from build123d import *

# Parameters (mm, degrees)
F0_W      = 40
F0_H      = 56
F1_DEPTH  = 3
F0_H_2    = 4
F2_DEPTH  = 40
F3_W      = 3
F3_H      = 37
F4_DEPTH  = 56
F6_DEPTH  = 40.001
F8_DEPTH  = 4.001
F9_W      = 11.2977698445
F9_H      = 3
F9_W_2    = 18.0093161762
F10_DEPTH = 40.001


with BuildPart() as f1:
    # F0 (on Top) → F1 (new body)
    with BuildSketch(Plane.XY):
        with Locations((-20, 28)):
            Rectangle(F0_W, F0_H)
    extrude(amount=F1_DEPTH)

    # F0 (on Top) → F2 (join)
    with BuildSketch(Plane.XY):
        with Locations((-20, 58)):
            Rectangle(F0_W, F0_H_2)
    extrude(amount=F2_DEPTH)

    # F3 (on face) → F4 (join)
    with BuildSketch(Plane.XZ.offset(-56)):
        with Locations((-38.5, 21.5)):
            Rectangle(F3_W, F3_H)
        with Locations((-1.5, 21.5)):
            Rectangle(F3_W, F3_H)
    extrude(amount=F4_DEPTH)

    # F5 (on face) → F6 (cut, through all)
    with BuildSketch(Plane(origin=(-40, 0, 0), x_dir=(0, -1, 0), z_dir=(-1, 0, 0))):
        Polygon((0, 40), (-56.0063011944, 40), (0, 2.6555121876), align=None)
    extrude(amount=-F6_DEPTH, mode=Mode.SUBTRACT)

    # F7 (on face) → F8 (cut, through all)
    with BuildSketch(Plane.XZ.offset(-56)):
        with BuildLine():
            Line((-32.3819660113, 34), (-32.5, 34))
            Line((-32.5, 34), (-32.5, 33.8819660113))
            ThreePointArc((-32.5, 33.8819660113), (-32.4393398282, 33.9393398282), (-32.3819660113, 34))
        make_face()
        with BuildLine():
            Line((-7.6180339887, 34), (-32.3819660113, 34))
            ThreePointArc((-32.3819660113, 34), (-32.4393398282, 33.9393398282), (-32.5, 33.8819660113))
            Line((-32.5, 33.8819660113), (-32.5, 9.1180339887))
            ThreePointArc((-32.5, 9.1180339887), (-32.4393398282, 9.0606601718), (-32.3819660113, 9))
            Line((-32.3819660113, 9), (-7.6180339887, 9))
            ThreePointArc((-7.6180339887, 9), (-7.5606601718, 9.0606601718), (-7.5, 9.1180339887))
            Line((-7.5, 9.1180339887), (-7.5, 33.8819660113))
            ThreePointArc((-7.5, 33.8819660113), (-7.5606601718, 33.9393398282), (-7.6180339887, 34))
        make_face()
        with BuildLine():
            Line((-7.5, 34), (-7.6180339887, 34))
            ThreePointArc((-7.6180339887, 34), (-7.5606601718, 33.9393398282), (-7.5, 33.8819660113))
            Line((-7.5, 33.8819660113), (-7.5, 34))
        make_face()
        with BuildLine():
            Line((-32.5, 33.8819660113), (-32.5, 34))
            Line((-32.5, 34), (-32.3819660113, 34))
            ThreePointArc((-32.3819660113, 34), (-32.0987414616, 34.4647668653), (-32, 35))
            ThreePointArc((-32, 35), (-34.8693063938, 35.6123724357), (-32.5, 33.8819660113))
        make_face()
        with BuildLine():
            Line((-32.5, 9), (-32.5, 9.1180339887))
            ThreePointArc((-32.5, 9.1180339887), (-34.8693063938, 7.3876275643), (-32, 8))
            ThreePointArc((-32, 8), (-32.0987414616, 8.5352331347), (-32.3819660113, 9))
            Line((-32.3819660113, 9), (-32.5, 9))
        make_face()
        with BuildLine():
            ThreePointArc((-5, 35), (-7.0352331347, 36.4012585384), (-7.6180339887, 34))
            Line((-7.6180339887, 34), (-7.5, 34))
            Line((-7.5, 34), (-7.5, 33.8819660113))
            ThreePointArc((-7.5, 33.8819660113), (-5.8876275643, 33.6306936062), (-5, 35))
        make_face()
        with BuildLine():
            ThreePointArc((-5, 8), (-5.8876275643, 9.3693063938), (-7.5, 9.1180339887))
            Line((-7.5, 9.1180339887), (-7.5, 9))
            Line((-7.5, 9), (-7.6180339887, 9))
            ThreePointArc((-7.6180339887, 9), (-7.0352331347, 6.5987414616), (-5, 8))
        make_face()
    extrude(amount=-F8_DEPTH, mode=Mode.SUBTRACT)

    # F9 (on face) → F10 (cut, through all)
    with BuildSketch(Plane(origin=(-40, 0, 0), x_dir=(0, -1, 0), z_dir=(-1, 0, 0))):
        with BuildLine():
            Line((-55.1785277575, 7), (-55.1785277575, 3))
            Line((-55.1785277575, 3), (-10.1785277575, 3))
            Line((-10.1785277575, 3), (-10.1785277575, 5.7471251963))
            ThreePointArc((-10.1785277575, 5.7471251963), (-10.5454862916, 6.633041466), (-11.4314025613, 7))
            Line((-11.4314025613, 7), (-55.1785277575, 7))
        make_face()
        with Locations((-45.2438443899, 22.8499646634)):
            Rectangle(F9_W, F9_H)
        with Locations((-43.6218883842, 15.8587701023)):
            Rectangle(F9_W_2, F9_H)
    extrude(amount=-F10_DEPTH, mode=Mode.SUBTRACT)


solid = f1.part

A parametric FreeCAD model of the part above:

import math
import FreeCAD as App
import Part
import Sketcher

V = App.Vector


def add_polygon(sketch, points):
    """Adds a closed chain of lines whose ends are joined by coincident constraints."""
    first, n = sketch.GeometryCount, len(points)
    for a, b in zip(points, points[1:] + points[:1]):
        sketch.addGeometry(Part.LineSegment(App.Vector(*a, 0), App.Vector(*b, 0)), False)
    for i in range(n):
        sketch.addConstraint(Sketcher.Constraint("Coincident", first + i, 2, first + (i + 1) % n, 1))

doc = App.newDocument("Part")
body = doc.addObject("PartDesign::Body", "Body")
body.AllowCompound = True

# Sketch on XY plane
sketch1 = body.newObject("Sketcher::SketchObject", "Sketch")
sketch1.AttachmentSupport = (doc.getObject("XY_Plane"), [""])
sketch1.MapMode = "FlatFace"
add_polygon(sketch1, [(-40, 56), (-40, 0), (0, 0), (0, 56)])  # lines 0-3
sketch1.addConstraint(Sketcher.Constraint("Vertical", 0))
sketch1.addConstraint(Sketcher.Constraint("Horizontal", 1))
sketch1.addConstraint(Sketcher.Constraint("Vertical", 2))
sketch1.addConstraint(Sketcher.Constraint("Horizontal", 3))
sketch1.addConstraint(Sketcher.Constraint("Coincident", 1, 2, -1, 1))
sketch1.addConstraint(Sketcher.Constraint("DistanceX", 1, 1, 1, 2, 40.0))
sketch1.addConstraint(Sketcher.Constraint("DistanceY", 0, 2, 0, 1, 56.0))
pad1 = body.newObject("PartDesign::Pad", "Pad")
pad1.Profile = sketch1
pad1.Length = 3

# Sketch on XY plane
sketch2 = body.newObject("Sketcher::SketchObject", "Sketch001")
sketch2.AttachmentSupport = (doc.getObject("XY_Plane"), [""])
sketch2.MapMode = "FlatFace"
add_polygon(sketch2, [(-40, 60), (-40, 56), (0, 56), (0, 60)])  # lines 0-3
sketch2.addConstraint(Sketcher.Constraint("Vertical", 0))
sketch2.addConstraint(Sketcher.Constraint("Horizontal", 1))
sketch2.addConstraint(Sketcher.Constraint("Vertical", 2))
sketch2.addConstraint(Sketcher.Constraint("Horizontal", 3))
sketch2.addConstraint(Sketcher.Constraint("PointOnObject", 1, 2, -2))
sketch2.addConstraint(Sketcher.Constraint("DistanceX", 1, 1, 1, 2, 40.0))
sketch2.addConstraint(Sketcher.Constraint("DistanceY", 0, 2, 0, 1, 4.0))
sketch2.addConstraint(Sketcher.Constraint("DistanceY", -1, 1, 0, 2, 56.0))
pad2 = body.newObject("PartDesign::Pad", "Pad001")
pad2.Profile = sketch2
pad2.Length = 40

# Sketch on XZ plane
sketch3 = body.newObject("Sketcher::SketchObject", "Sketch002")
sketch3.AttachmentSupport = (doc.getObject("XZ_Plane"), [""])
sketch3.MapMode = "FlatFace"
sketch3.AttachmentOffset = App.Placement(V(0, 0, -56), App.Rotation())
add_polygon(sketch3, [(-40, 40), (-40, 3), (-37, 3), (-37, 40)])  # lines 0-3
add_polygon(sketch3, [(-3, 40), (-3, 3), (0, 3), (0, 40)])  # lines 4-7
sketch3.addConstraint(Sketcher.Constraint("Vertical", 0))
sketch3.addConstraint(Sketcher.Constraint("Horizontal", 1))
sketch3.addConstraint(Sketcher.Constraint("Vertical", 2))
sketch3.addConstraint(Sketcher.Constraint("Horizontal", 3))
sketch3.addConstraint(Sketcher.Constraint("Vertical", 4))
sketch3.addConstraint(Sketcher.Constraint("Horizontal", 5))
sketch3.addConstraint(Sketcher.Constraint("Vertical", 6))
sketch3.addConstraint(Sketcher.Constraint("Horizontal", 7))
sketch3.addConstraint(Sketcher.Constraint("PointOnObject", 5, 2, -2))
sketch3.addConstraint(Sketcher.Constraint("Horizontal", 1, 2, 4, 2))
sketch3.addConstraint(Sketcher.Constraint("Horizontal", 3, 2, 6, 2))
sketch3.addConstraint(Sketcher.Constraint("Equal", 3, 5))
sketch3.addConstraint(Sketcher.Constraint("DistanceX", 1, 1, 1, 2, 3.0))
sketch3.addConstraint(Sketcher.Constraint("DistanceY", 0, 2, 0, 1, 37.0))
sketch3.addConstraint(Sketcher.Constraint("DistanceX", 0, 2, -1, 1, 40.0))
sketch3.addConstraint(Sketcher.Constraint("DistanceY", -1, 1, 0, 2, 3.0))
pad3 = body.newObject("PartDesign::Pad", "Pad002")
pad3.Profile = sketch3
pad3.Length = 56

# Sketch on YZ plane
sketch4 = body.newObject("Sketcher::SketchObject", "Sketch003")
sketch4.AttachmentSupport = (doc.getObject("YZ_Plane"), [""])
sketch4.MapMode = "FlatFace"
sketch4.AttachmentOffset = App.Placement(V(0, 0, -40), App.Rotation())
add_polygon(sketch4, [(0, 40), (56, 40), (0, 3)])  # lines 0-2
sketch4.addConstraint(Sketcher.Constraint("Horizontal", 0))
sketch4.addConstraint(Sketcher.Constraint("Vertical", 2))
sketch4.addConstraint(Sketcher.Constraint("PointOnObject", 1, 2, -2))
sketch4.addConstraint(Sketcher.Constraint("DistanceY", -1, 1, 0, 2, 40.0))
sketch4.addConstraint(Sketcher.Constraint("DistanceX", 0, 1, 0, 2, 56.006301))
sketch4.addConstraint(Sketcher.Constraint("DistanceY", 2, 1, 2, 2, 37.344488))
pocket1 = body.newObject("PartDesign::Pocket", "Pocket")
pocket1.Profile = sketch4
pocket1.Type = "ThroughAll"
pocket1.Reversed = True

# Sketch on XZ plane
sketch5 = body.newObject("Sketcher::SketchObject", "Sketch004")
sketch5.AttachmentSupport = (doc.getObject("XZ_Plane"), [""])
sketch5.MapMode = "FlatFace"
sketch5.AttachmentOffset = App.Placement(V(0, 0, -56), App.Rotation())
sketch5.addGeometry(Part.ArcOfCircle(Part.Circle(V(-33.5, 35, 0), V(0, 0, 1), 1.5), math.radians(-42), math.radians(0)), False)
sketch5.addGeometry(Part.ArcOfCircle(Part.Circle(V(-33.5, 35, 0), V(0, 0, 1), 1.5), math.radians(0), math.radians(312)), False)
sketch5.addGeometry(Part.LineSegment(V(-32.5, 33.88, 0), V(-32.5, 9.12, 0)), False)
sketch5.addGeometry(Part.ArcOfCircle(Part.Circle(V(-33.5, 8, 0), V(0, 0, 1), 1.5), math.radians(41.81), math.radians(48.19)), False)
sketch5.addGeometry(Part.LineSegment(V(-32.38, 9, 0), V(-7.62, 9, 0)), False)
sketch5.addGeometry(Part.ArcOfCircle(Part.Circle(V(-6.5, 8, 0), V(0, 0, 1), 1.5), math.radians(131.81), math.radians(138.19)), False)
sketch5.addGeometry(Part.LineSegment(V(-7.5, 9.12, 0), V(-7.5, 33.88, 0)), False)
sketch5.addGeometry(Part.ArcOfCircle(Part.Circle(V(-6.5, 35, 0), V(0, 0, 1), 1.5), math.radians(-132), math.radians(0)), False)
sketch5.addGeometry(Part.ArcOfCircle(Part.Circle(V(-6.5, 35, 0), V(0, 0, 1), 1.5), math.radians(0), math.radians(222)), False)
sketch5.addGeometry(Part.LineSegment(V(-7.62, 34, 0), V(-32.38, 34, 0)), False)
sketch5.addGeometry(Part.LineSegment(V(-32.5, 9, 0), V(-32.5, 9.12, 0)), False)
sketch5.addGeometry(Part.ArcOfCircle(Part.Circle(V(-33.5, 8, 0), V(0, 0, 1), 1.5), math.radians(48), math.radians(360)), False)
sketch5.addGeometry(Part.ArcOfCircle(Part.Circle(V(-33.5, 8, 0), V(0, 0, 1), 1.5), math.radians(0), math.radians(42)), False)
sketch5.addGeometry(Part.LineSegment(V(-32.38, 9, 0), V(-32.5, 9, 0)), False)
sketch5.addGeometry(Part.ArcOfCircle(Part.Circle(V(-6.5, 8, 0), V(0, 0, 1), 1.5), math.radians(0), math.radians(132)), False)
sketch5.addGeometry(Part.LineSegment(V(-7.5, 9.12, 0), V(-7.5, 9, 0)), False)
sketch5.addGeometry(Part.LineSegment(V(-7.5, 9, 0), V(-7.62, 9, 0)), False)
sketch5.addGeometry(Part.ArcOfCircle(Part.Circle(V(-6.5, 8, 0), V(0, 0, 1), 1.5), math.radians(138), math.radians(360)), False)
sketch5.addConstraint(Sketcher.Constraint("Tangent", 0, 2, 1, 1))
sketch5.addConstraint(Sketcher.Constraint("Coincident", 1, 2, 2, 1))
sketch5.addConstraint(Sketcher.Constraint("Coincident", 2, 2, 3, 2))
sketch5.addConstraint(Sketcher.Constraint("Coincident", 3, 1, 4, 1))
sketch5.addConstraint(Sketcher.Constraint("Coincident", 4, 2, 5, 2))
sketch5.addConstraint(Sketcher.Constraint("Coincident", 5, 1, 6, 1))
sketch5.addConstraint(Sketcher.Constraint("Coincident", 6, 2, 7, 1))
sketch5.addConstraint(Sketcher.Constraint("Tangent", 7, 2, 8, 1))
sketch5.addConstraint(Sketcher.Constraint("Coincident", 8, 2, 9, 1))
sketch5.addConstraint(Sketcher.Constraint("Coincident", 9, 2, 0, 1))
sketch5.addConstraint(Sketcher.Constraint("Coincident", 10, 2, 11, 1))
sketch5.addConstraint(Sketcher.Constraint("Tangent", 11, 2, 12, 1))
sketch5.addConstraint(Sketcher.Constraint("Coincident", 12, 2, 13, 1))
sketch5.addConstraint(Sketcher.Constraint("Coincident", 13, 2, 10, 1))
sketch5.addConstraint(Sketcher.Constraint("Coincident", 14, 2, 15, 1))
sketch5.addConstraint(Sketcher.Constraint("Coincident", 15, 2, 16, 1))
sketch5.addConstraint(Sketcher.Constraint("Coincident", 16, 2, 17, 1))
sketch5.addConstraint(Sketcher.Constraint("Tangent", 17, 2, 14, 1))
sketch5.addConstraint(Sketcher.Constraint("Vertical", 2))
sketch5.addConstraint(Sketcher.Constraint("Horizontal", 4))
sketch5.addConstraint(Sketcher.Constraint("Vertical", 6))
sketch5.addConstraint(Sketcher.Constraint("Horizontal", 9))
sketch5.addConstraint(Sketcher.Constraint("Vertical", 10))
sketch5.addConstraint(Sketcher.Constraint("Horizontal", 13))
sketch5.addConstraint(Sketcher.Constraint("Vertical", 15))
sketch5.addConstraint(Sketcher.Constraint("Horizontal", 16))
sketch5.addConstraint(Sketcher.Constraint("Coincident", 11, 3, 3, 3))
sketch5.addConstraint(Sketcher.Constraint("Coincident", 14, 3, 5, 3))
sketch5.addConstraint(Sketcher.Constraint("Coincident", 10, 2, 2, 2))
sketch5.addConstraint(Sketcher.Constraint("Coincident", 12, 2, 3, 1))
sketch5.addConstraint(Sketcher.Constraint("Coincident", 14, 2, 5, 1))
sketch5.addConstraint(Sketcher.Constraint("Coincident", 16, 2, 4, 2))
sketch5.addConstraint(Sketcher.Constraint("Equal", 0, 1))
sketch5.addConstraint(Sketcher.Constraint("Equal", 1, 3))
sketch5.addConstraint(Sketcher.Constraint("Equal", 3, 5))
sketch5.addConstraint(Sketcher.Constraint("Equal", 5, 7))
sketch5.addConstraint(Sketcher.Constraint("Equal", 7, 8))
sketch5.addConstraint(Sketcher.Constraint("Horizontal", 3, 3, 5, 3))
sketch5.addConstraint(Sketcher.Constraint("Horizontal", 1, 3, 7, 3))
sketch5.addConstraint(Sketcher.Constraint("Horizontal", 8, 3, 0, 2))
sketch5.addConstraint(Sketcher.Constraint("Horizontal", 2, 2, 5, 1))
sketch5.addConstraint(Sketcher.Constraint("Horizontal", 1, 2, 6, 2))
sketch5.addConstraint(Sketcher.Constraint("Horizontal", 0, 2, 7, 2))
sketch5.addConstraint(Sketcher.Constraint("Horizontal", 17, 3, 11, 2))
sketch5.addConstraint(Sketcher.Constraint("Horizontal", 11, 2, 17, 2))
sketch5.addConstraint(Sketcher.Constraint("Vertical", 1, 3, 3, 3))
sketch5.addConstraint(Sketcher.Constraint("Vertical", 4, 2, 8, 2))
sketch5.addConstraint(Sketcher.Constraint("Equal", 9, 2))
sketch5.addConstraint(Sketcher.Constraint("Equal", 16, 10))
sketch5.addConstraint(Sketcher.Constraint("Radius", 0, 1.5))
sketch5.addConstraint(Sketcher.Constraint("DistanceY", -1, 1, 0, 3, 35.0))
sketch5.addConstraint(Sketcher.Constraint("DistanceY", -1, 1, 3, 3, 8.0))
sketch5.addConstraint(Sketcher.Constraint("DistanceX", 0, 2, -1, 1, 32.0))
sketch5.addConstraint(Sketcher.Constraint("DistanceY", -1, 1, 3, 1, 9.0))
pocket2 = body.newObject("PartDesign::Pocket", "Pocket001")
pocket2.Profile = sketch5
pocket2.Type = "ThroughAll"

# Sketch on YZ plane
sketch6 = body.newObject("Sketcher::SketchObject", "Sketch005")
sketch6.AttachmentSupport = (doc.getObject("YZ_Plane"), [""])
sketch6.MapMode = "FlatFace"
sketch6.AttachmentOffset = App.Placement(V(0, 0, -40), App.Rotation())
sketch6.addGeometry(Part.LineSegment(V(55.2, 7, 0), V(55.2, 3, 0)), False)  # 0
sketch6.addGeometry(Part.LineSegment(V(55.2, 3, 0), V(10.2, 3, 0)), False)  # 1
sketch6.addGeometry(Part.LineSegment(V(10.2, 3, 0), V(10.2, 5.7, 0)), False)  # 2
sketch6.addGeometry(Part.ArcOfCircle(Part.Circle(V(11.4, 5.7, 0), V(0, 0, 1), 1.3), math.radians(90), math.radians(180)), False)  # 3
sketch6.addGeometry(Part.LineSegment(V(11.4, 7, 0), V(55.2, 7, 0)), False)  # 4
add_polygon(sketch6, [(50.9, 24.3), (50.9, 21.3), (39.6, 21.3), (39.6, 24.3)])  # lines 5-8
add_polygon(sketch6, [(52.6, 17.4), (52.6, 14.4), (34.6, 14.4), (34.6, 17.4)])  # lines 9-12
sketch6.addConstraint(Sketcher.Constraint("Coincident", 0, 2, 1, 1))
sketch6.addConstraint(Sketcher.Constraint("Coincident", 1, 2, 2, 1))
sketch6.addConstraint(Sketcher.Constraint("Tangent", 2, 2, 3, 2))
sketch6.addConstraint(Sketcher.Constraint("Tangent", 3, 1, 4, 1))
sketch6.addConstraint(Sketcher.Constraint("Coincident", 4, 2, 0, 1))
sketch6.addConstraint(Sketcher.Constraint("Vertical", 0))
sketch6.addConstraint(Sketcher.Constraint("Horizontal", 1))
sketch6.addConstraint(Sketcher.Constraint("Vertical", 2))
sketch6.addConstraint(Sketcher.Constraint("Horizontal", 4))
sketch6.addConstraint(Sketcher.Constraint("Vertical", 5))
sketch6.addConstraint(Sketcher.Constraint("Horizontal", 6))
sketch6.addConstraint(Sketcher.Constraint("Vertical", 7))
sketch6.addConstraint(Sketcher.Constraint("Horizontal", 8))
sketch6.addConstraint(Sketcher.Constraint("Vertical", 9))
sketch6.addConstraint(Sketcher.Constraint("Horizontal", 10))
sketch6.addConstraint(Sketcher.Constraint("Vertical", 11))
sketch6.addConstraint(Sketcher.Constraint("Horizontal", 12))
sketch6.addConstraint(Sketcher.Constraint("Equal", 7, 9))
sketch6.addConstraint(Sketcher.Constraint("DistanceX", 1, 2, 1, 1, 45.0))
sketch6.addConstraint(Sketcher.Constraint("DistanceY", 0, 2, 0, 1, 4.0))
sketch6.addConstraint(Sketcher.Constraint("DistanceY", 5, 2, 5, 1, 3.0))
sketch6.addConstraint(Sketcher.Constraint("DistanceY", -1, 1, 0, 2, 3.0))
sketch6.addConstraint(Sketcher.Constraint("Radius", 3, 1.252875))
sketch6.addConstraint(Sketcher.Constraint("DistanceX", 6, 2, 6, 1, 11.29777))
sketch6.addConstraint(Sketcher.Constraint("DistanceX", 5, 2, 4, 2, 4.285798))
sketch6.addConstraint(Sketcher.Constraint("DistanceX", 10, 2, 5, 2, 16.275499))
sketch6.addConstraint(Sketcher.Constraint("DistanceX", 10, 2, 10, 1, 18.009316))
sketch6.addConstraint(Sketcher.Constraint("DistanceX", -1, 1, 5, 2, 50.892729))
sketch6.addConstraint(Sketcher.Constraint("DistanceY", -1, 1, 9, 2, 14.35877))
sketch6.addConstraint(Sketcher.Constraint("DistanceY", 3, 3, 5, 2, 15.602839))
pocket3 = body.newObject("PartDesign::Pocket", "Pocket002")
pocket3.Profile = sketch6
pocket3.Type = "ThroughAll"
pocket3.Reversed = True

doc.recompute()
